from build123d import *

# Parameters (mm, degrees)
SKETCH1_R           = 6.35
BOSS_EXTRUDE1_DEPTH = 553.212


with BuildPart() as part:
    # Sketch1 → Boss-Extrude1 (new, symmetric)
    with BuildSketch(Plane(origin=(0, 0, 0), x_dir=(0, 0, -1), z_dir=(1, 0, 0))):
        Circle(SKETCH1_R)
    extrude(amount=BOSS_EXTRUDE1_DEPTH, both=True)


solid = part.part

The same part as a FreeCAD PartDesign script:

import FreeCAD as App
import Part
import Sketcher

V = App.Vector
Q = App.Units.Quantity

doc = App.newDocument("Part")
body = doc.addObject("PartDesign::Body", "Body")

# Sketch on YZ plane
sketch1 = doc.addObject("Sketcher::SketchObject", "Sketch")
body.addObject(sketch1)
sketch1.AttachmentSupport = (doc.YZ_Plane, [""])
sketch1.MapMode = "FlatFace"
sketch1.addGeometry(Part.Circle(V(0, 0, 0), V(0, 0, 1), 6), False)
sketch1.addConstraint(Sketcher.Constraint("Coincident", 0, 3, -1, 1))
sketch1.addConstraint(Sketcher.Constraint("Diameter", 0, Q("0.5 in")))
pad1 = doc.addObject("PartDesign::Pad", "Pad")
body.addObject(pad1)
pad1.Profile = sketch1
pad1.Length = Q("43.56 in")
pad1.Midplane = True

doc.recompute()
